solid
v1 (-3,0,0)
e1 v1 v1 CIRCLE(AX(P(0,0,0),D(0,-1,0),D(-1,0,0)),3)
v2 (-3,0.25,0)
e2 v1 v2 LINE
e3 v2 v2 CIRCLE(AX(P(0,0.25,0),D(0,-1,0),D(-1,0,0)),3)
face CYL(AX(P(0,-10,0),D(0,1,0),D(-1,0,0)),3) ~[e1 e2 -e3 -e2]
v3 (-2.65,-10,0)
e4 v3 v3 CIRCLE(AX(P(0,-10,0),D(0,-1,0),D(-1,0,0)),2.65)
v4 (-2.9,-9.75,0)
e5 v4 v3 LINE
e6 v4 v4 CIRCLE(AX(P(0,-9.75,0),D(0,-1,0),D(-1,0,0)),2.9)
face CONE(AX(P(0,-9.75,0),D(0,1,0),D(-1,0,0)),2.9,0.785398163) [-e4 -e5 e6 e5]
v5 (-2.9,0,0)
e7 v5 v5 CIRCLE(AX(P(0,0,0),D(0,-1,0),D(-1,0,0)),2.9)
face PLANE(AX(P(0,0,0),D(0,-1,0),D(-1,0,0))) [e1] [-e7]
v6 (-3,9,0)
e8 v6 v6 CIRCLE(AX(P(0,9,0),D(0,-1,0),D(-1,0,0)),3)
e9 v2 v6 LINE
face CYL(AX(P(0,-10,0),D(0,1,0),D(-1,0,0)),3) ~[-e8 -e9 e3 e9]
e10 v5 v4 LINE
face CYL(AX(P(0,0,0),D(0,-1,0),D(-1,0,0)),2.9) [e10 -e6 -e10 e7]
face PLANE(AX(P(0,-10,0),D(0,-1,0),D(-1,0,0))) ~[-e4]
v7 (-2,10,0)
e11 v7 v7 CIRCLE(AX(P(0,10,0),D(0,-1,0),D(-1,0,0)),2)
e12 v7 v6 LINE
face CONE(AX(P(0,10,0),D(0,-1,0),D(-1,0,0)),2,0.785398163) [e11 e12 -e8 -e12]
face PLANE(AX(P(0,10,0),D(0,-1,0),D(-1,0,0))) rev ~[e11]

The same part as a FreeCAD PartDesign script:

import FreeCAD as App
import Part
import Sketcher
from FreeCAD import Vector
Q = App.Units.Quantity

doc = App.newDocument("Part")
body = doc.addObject("PartDesign::Body", "Body")

# Sketch on XY plane
sketch1 = body.newObject("Sketcher::SketchObject", "Sketch")
sketch1.AttachmentSupport = (doc.getObject("XY_Plane"), [""])
sketch1.MapMode = "FlatFace"
sketch1.addGeometry([
    Part.LineSegment(Vector(0, 10, 0), Vector(-2, 10, 0)),  # 0
    Part.LineSegment(Vector(-2, 10, 0), Vector(-3, 9, 0)),  # 1
    Part.LineSegment(Vector(-3, 9, 0), Vector(-3, 0, 0)),  # 2
    Part.LineSegment(Vector(-3, 0, 0), Vector(-2.9, 0, 0)),  # 3
    Part.LineSegment(Vector(-2.9, 0, 0), Vector(-2.9, -9.75, 0)),  # 4
    Part.LineSegment(Vector(-2.9, -9.75, 0), Vector(-2.65, -10, 0)),  # 5
    Part.LineSegment(Vector(-2.65, -10, 0), Vector(0, -10, 0)),  # 6
    Part.LineSegment(Vector(0, -10, 0), Vector(0, 10, 0)),  # 7
], False)
sketch1.addConstraint([
    Sketcher.Constraint("Coincident", 0, 2, 1, 1),
    Sketcher.Constraint("Coincident", 1, 2, 2, 1),
    Sketcher.Constraint("Coincident", 2, 2, 3, 1),
    Sketcher.Constraint("Coincident", 3, 2, 4, 1),
    Sketcher.Constraint("Coincident", 4, 2, 5, 1),
    Sketcher.Constraint("Coincident", 5, 2, 6, 1),
    Sketcher.Constraint("Coincident", 6, 2, 7, 1),
    Sketcher.Constraint("Coincident", 7, 2, 0, 1),
    Sketcher.Constraint("Horizontal", 0),
    Sketcher.Constraint("Vertical", 2),
    Sketcher.Constraint("Horizontal", 3),
    Sketcher.Constraint("Vertical", 4),
    Sketcher.Constraint("Horizontal", 6),
    Sketcher.Constraint("Vertical", 7),
    Sketcher.Constraint("Symmetric", 6, 2, 7, 2, -1, 1),
    Sketcher.Constraint("PointOnObject", 2, 2, -1),
    Sketcher.Constraint("Perpendicular", 1, 5),
    Sketcher.Constraint("DistanceY", 7, 1, 7, 2, Q("20 mm")),
    Sketcher.Constraint("Angle", 5, Q("-45 deg")),
    Sketcher.Constraint("DistanceX", 1, 2, 0, 2, Q("1 mm")),
    Sketcher.Constraint("DistanceX", 0, 2, 0, 1, Q("2 mm")),
    Sketcher.Constraint("DistanceX", 4, 2, 5, 2, Q("0.25 mm")),
    Sketcher.Constraint("DistanceX", 3, 1, 3, 2, Q("0.1 mm")),
])
revolution = body.newObject("PartDesign::Revolution", "Revolution")
revolution.Profile = sketch1
revolution.ReferenceAxis = (sketch1, ["V_Axis"])
revolution.Angle = 360

doc.recompute()
